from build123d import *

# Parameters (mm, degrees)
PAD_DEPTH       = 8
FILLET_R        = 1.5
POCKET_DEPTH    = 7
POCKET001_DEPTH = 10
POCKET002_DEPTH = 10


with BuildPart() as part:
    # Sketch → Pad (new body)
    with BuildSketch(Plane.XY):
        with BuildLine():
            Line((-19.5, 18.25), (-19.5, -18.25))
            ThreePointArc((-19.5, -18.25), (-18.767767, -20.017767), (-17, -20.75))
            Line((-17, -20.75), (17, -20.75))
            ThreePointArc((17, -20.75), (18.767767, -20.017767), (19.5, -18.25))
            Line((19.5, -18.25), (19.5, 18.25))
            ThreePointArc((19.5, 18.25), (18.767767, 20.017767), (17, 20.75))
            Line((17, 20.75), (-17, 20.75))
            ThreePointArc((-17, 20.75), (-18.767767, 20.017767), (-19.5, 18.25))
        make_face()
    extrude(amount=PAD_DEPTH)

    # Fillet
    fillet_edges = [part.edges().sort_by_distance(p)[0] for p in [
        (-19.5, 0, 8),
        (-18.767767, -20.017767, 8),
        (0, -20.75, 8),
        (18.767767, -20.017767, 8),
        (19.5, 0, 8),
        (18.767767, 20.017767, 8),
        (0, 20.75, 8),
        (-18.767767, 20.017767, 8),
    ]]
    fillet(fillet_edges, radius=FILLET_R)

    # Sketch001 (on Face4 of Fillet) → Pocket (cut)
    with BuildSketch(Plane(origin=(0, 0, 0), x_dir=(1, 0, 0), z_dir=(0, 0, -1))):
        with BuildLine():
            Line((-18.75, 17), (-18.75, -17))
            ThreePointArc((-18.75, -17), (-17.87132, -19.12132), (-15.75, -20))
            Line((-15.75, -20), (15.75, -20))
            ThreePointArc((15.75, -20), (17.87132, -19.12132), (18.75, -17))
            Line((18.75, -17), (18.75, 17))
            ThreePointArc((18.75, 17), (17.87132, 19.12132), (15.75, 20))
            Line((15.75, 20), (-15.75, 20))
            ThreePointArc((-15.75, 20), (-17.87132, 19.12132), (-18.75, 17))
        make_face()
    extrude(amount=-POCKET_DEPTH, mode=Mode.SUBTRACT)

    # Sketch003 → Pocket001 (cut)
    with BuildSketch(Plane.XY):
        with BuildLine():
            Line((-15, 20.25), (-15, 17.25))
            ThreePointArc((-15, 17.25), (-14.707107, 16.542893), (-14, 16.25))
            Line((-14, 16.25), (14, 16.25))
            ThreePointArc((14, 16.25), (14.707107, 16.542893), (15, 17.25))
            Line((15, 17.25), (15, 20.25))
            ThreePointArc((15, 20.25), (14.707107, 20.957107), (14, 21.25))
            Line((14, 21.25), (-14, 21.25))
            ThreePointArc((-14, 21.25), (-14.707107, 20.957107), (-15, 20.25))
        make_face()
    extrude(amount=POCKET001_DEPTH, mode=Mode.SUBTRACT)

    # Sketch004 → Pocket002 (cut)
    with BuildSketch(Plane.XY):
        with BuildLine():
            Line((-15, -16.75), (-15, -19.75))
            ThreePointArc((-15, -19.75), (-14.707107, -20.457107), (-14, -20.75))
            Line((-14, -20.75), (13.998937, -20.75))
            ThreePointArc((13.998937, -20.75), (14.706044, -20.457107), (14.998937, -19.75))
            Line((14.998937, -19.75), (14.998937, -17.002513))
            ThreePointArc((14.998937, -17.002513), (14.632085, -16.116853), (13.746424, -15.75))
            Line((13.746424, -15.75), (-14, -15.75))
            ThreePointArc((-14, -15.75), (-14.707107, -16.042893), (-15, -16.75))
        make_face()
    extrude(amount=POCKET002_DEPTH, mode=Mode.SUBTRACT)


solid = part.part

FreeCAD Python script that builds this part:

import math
import FreeCAD as App
import Part
import Sketcher
from FreeCAD import Vector
Q = App.Units.Quantity


def edges_at(feature, points):
    """Names of the edges that pass closest to the given points."""
    edges = feature.Shape.Edges
    near = lambda p: min(range(len(edges)), key=lambda i: edges[i].distToShape(Part.Vertex(*p))[0])
    return sorted({f"Edge{near(p) + 1}" for p in points})

doc = App.newDocument("Part")
body = doc.addObject("PartDesign::Body", "Body")

# Sketch on XY plane
sketch1 = body.newObject("Sketcher::SketchObject", "Sketch")
sketch1.AttachmentSupport = (doc.getObject("XY_Plane"), [""])
sketch1.MapMode = "FlatFace"
sketch1.addGeometry(Part.LineSegment(Vector(-19.5, 18.2, 0), Vector(-19.5, -18.2, 0)), False)
sketch1.addGeometry(Part.ArcOfCircle(Part.Circle(Vector(-17, -18.3, 0), Vector(0, 0, 1), 2.5), math.radians(180), math.radians(270)), False)
sketch1.addGeometry(Part.LineSegment(Vector(-17, -20.8, 0), Vector(17, -20.8, 0)), False)
sketch1.addGeometry(Part.ArcOfCircle(Part.Circle(Vector(17, -18.3, 0), Vector(0, 0, 1), 2.5), math.radians(-90), math.radians(0)), False)
sketch1.addGeometry(Part.LineSegment(Vector(19.5, -18.2, 0), Vector(19.5, 18.2, 0)), False)
sketch1.addGeometry(Part.ArcOfCircle(Part.Circle(Vector(17, 18.3, 0), Vector(0, 0, 1), 2.5), math.radians(0), math.radians(90)), False)
sketch1.addGeometry(Part.LineSegment(Vector(17, 20.8, 0), Vector(-17, 20.8, 0)), False)
sketch1.addGeometry(Part.ArcOfCircle(Part.Circle(Vector(-17, 18.3, 0), Vector(0, 0, 1), 2.5), math.radians(90), math.radians(180)), False)
sketch1.addConstraint(Sketcher.Constraint("Tangent", 0, 2, 1, 1))
sketch1.addConstraint(Sketcher.Constraint("Tangent", 1, 2, 2, 1))
sketch1.addConstraint(Sketcher.Constraint("Tangent", 2, 2, 3, 1))
sketch1.addConstraint(Sketcher.Constraint("Tangent", 3, 2, 4, 1))
sketch1.addConstraint(Sketcher.Constraint("Tangent", 4, 2, 5, 1))
sketch1.addConstraint(Sketcher.Constraint("Tangent", 5, 2, 6, 1))
sketch1.addConstraint(Sketcher.Constraint("Tangent", 6, 2, 7, 1))
sketch1.addConstraint(Sketcher.Constraint("Tangent", 7, 2, 0, 1))
sketch1.addConstraint(Sketcher.Constraint("Vertical", 0))
sketch1.addConstraint(Sketcher.Constraint("Horizontal", 2))
sketch1.addConstraint(Sketcher.Constraint("Vertical", 4))
sketch1.addConstraint(Sketcher.Constraint("Horizontal", 6))
sketch1.addConstraint(Sketcher.Constraint("Equal", 1, 3))
sketch1.addConstraint(Sketcher.Constraint("Equal", 3, 5))
sketch1.addConstraint(Sketcher.Constraint("Equal", 5, 7))
sketch1.addConstraint(Sketcher.Constraint("Symmetric", 1, 3, 5, 3, -1, 1))
sketch1.addConstraint(Sketcher.Constraint("Radius", 1, Q("2.5 mm")))
sketch1.addConstraint(Sketcher.Constraint("DistanceX", 2, 1, 2, 2, Q("34 mm")))
sketch1.addConstraint(Sketcher.Constraint("DistanceY", 0, 2, 0, 1, Q("36.5 mm")))
pad1 = body.newObject("PartDesign::Pad", "Pad")
pad1.Profile = sketch1
pad1.Length = 8
doc.recompute()

fillet = body.newObject("PartDesign::Fillet", "Fillet")
fillet.Base = (pad1, edges_at(pad1, [
    (-19.5, 0, 8),
    (-18.768, -20.018, 8),
    (0, -20.75, 8),
    (18.768, -20.018, 8),
    (19.5, 0, 8),
    (18.768, 20.018, 8),
    (0, 20.75, 8),
    (-18.768, 20.018, 8),
]))
fillet.Radius = 1.5

# Sketch on XY plane
sketch2 = body.newObject("Sketcher::SketchObject", "Sketch001")
sketch2.AttachmentSupport = (doc.getObject("XY_Plane"), [""])
sketch2.MapMode = "FlatFace"
sketch2.addGeometry(Part.LineSegment(Vector(-18.8, -17, 0), Vector(-18.8, 17, 0)), False)
sketch2.addGeometry(Part.ArcOfCircle(Part.Circle(Vector(-15.7, 17, 0), Vector(0, 0, 1), 3), math.radians(90), math.radians(180)), False)
sketch2.addGeometry(Part.LineSegment(Vector(-15.8, 20, 0), Vector(15.8, 20, 0)), False)
sketch2.addGeometry(Part.ArcOfCircle(Part.Circle(Vector(15.7, 17, 0), Vector(0, 0, 1), 3), math.radians(0), math.radians(90)), False)
sketch2.addGeometry(Part.LineSegment(Vector(18.8, 17, 0), Vector(18.8, -17, 0)), False)
sketch2.addGeometry(Part.ArcOfCircle(Part.Circle(Vector(15.7, -17, 0), Vector(0, 0, 1), 3), math.radians(-90), math.radians(0)), False)
sketch2.addGeometry(Part.LineSegment(Vector(15.8, -20, 0), Vector(-15.8, -20, 0)), False)
sketch2.addGeometry(Part.ArcOfCircle(Part.Circle(Vector(-15.7, -17, 0), Vector(0, 0, 1), 3), math.radians(-180), math.radians(-90)), False)
sketch2.addConstraint(Sketcher.Constraint("Tangent", 0, 2, 1, 2))
sketch2.addConstraint(Sketcher.Constraint("Tangent", 1, 1, 2, 1))
sketch2.addConstraint(Sketcher.Constraint("Tangent", 2, 2, 3, 2))
sketch2.addConstraint(Sketcher.Constraint("Tangent", 3, 1, 4, 1))
sketch2.addConstraint(Sketcher.Constraint("Tangent", 4, 2, 5, 2))
sketch2.addConstraint(Sketcher.Constraint("Tangent", 5, 1, 6, 1))
sketch2.addConstraint(Sketcher.Constraint("Tangent", 6, 2, 7, 2))
sketch2.addConstraint(Sketcher.Constraint("Tangent", 7, 1, 0, 1))
sketch2.addConstraint(Sketcher.Constraint("Vertical", 0))
sketch2.addConstraint(Sketcher.Constraint("Horizontal", 2))
sketch2.addConstraint(Sketcher.Constraint("Vertical", 4))
sketch2.addConstraint(Sketcher.Constraint("Horizontal", 6))
sketch2.addConstraint(Sketcher.Constraint("Equal", 1, 3))
sketch2.addConstraint(Sketcher.Constraint("Equal", 3, 5))
sketch2.addConstraint(Sketcher.Constraint("Equal", 5, 7))
sketch2.addConstraint(Sketcher.Constraint("Symmetric", 1, 3, 5, 3, -1, 1))
sketch2.addConstraint(Sketcher.Constraint("Radius", 1, Q("3.000001 mm")))
sketch2.addConstraint(Sketcher.Constraint("DistanceY", 0, 1, 0, 2, Q("34 mm")))
sketch2.addConstraint(Sketcher.Constraint("DistanceX", 2, 1, 2, 2, Q("31.5 mm")))
pocket1 = body.newObject("PartDesign::Pocket", "Pocket")
pocket1.Profile = sketch2
pocket1.Length = 7
pocket1.Reversed = True

# Sketch on XY plane
sketch3 = body.newObject("Sketcher::SketchObject", "Sketch002")
sketch3.AttachmentSupport = (doc.getObject("XY_Plane"), [""])
sketch3.MapMode = "FlatFace"
sketch3.addGeometry(Part.LineSegment(Vector(-15, 20.2, 0), Vector(-15, 17.2, 0)), False)
sketch3.addGeometry(Part.ArcOfCircle(Part.Circle(Vector(-14, 17.2, 0), Vector(0, 0, 1), 1), math.radians(180), math.radians(270)), False)
sketch3.addGeometry(Part.LineSegment(Vector(-14, 16.2, 0), Vector(14, 16.2, 0)), False)
sketch3.addGeometry(Part.ArcOfCircle(Part.Circle(Vector(14, 17.2, 0), Vector(0, 0, 1), 1), math.radians(-90), math.radians(0)), False)
sketch3.addGeometry(Part.LineSegment(Vector(15, 17.2, 0), Vector(15, 20.2, 0)), False)
sketch3.addGeometry(Part.ArcOfCircle(Part.Circle(Vector(14, 20.3, 0), Vector(0, 0, 1), 1), math.radians(0), math.radians(90)), False)
sketch3.addGeometry(Part.LineSegment(Vector(14, 21.2, 0), Vector(-14, 21.2, 0)), False)
sketch3.addGeometry(Part.ArcOfCircle(Part.Circle(Vector(-14, 20.3, 0), Vector(0, 0, 1), 1), math.radians(90), math.radians(180)), False)
sketch3.addConstraint(Sketcher.Constraint("Tangent", 0, 2, 1, 1))
sketch3.addConstraint(Sketcher.Constraint("Tangent", 1, 2, 2, 1))
sketch3.addConstraint(Sketcher.Constraint("Tangent", 2, 2, 3, 1))
sketch3.addConstraint(Sketcher.Constraint("Tangent", 3, 2, 4, 1))
sketch3.addConstraint(Sketcher.Constraint("Tangent", 4, 2, 5, 1))
sketch3.addConstraint(Sketcher.Constraint("Tangent", 5, 2, 6, 1))
sketch3.addConstraint(Sketcher.Constraint("Tangent", 6, 2, 7, 1))
sketch3.addConstraint(Sketcher.Constraint("Tangent", 7, 2, 0, 1))
sketch3.addConstraint(Sketcher.Constraint("Vertical", 0))
sketch3.addConstraint(Sketcher.Constraint("Horizontal", 2))
sketch3.addConstraint(Sketcher.Constraint("Vertical", 4))
sketch3.addConstraint(Sketcher.Constraint("Horizontal", 6))
sketch3.addConstraint(Sketcher.Constraint("Equal", 1, 3))
sketch3.addConstraint(Sketcher.Constraint("Equal", 3, 5))
sketch3.addConstraint(Sketcher.Constraint("Equal", 5, 7))
sketch3.addConstraint(Sketcher.Constraint("Radius", 1, Q("0.999999 mm")))
sketch3.addConstraint(Sketcher.Constraint("DistanceX", 2, 1, 2, 2, Q("28 mm")))
sketch3.addConstraint(Sketcher.Constraint("DistanceY", 0, 2, 0, 1, Q("3 mm")))
sketch3.addConstraint(Sketcher.Constraint("DistanceX", 1, 3, -1, 1, Q("14.000001 mm")))
sketch3.addConstraint(Sketcher.Constraint("DistanceY", -1, 1, 1, 3, Q("17.249999 mm")))
pocket2 = body.newObject("PartDesign::Pocket", "Pocket001")
pocket2.Profile = sketch3
pocket2.Length = 10
pocket2.Reversed = True

# Sketch on XY plane
sketch4 = body.newObject("Sketcher::SketchObject", "Sketch003")
sketch4.AttachmentSupport = (doc.getObject("XY_Plane"), [""])
sketch4.MapMode = "FlatFace"
sketch4.addGeometry(Part.LineSegment(Vector(-15, -16.8, 0), Vector(-15, -19.8, 0)), False)
sketch4.addGeometry(Part.ArcOfCircle(Part.Circle(Vector(-14, -19.8, 0), Vector(0, 0, 1), 1), math.radians(180), math.radians(270)), False)
sketch4.addGeometry(Part.LineSegment(Vector(-14, -20.8, 0), Vector(14, -20.8, 0)), False)
sketch4.addGeometry(Part.ArcOfCircle(Part.Circle(Vector(14, -19.8, 0), Vector(0, 0, 1), 1), math.radians(-90), math.radians(0)), False)
sketch4.addGeometry(Part.LineSegment(Vector(15, -19.8, 0), Vector(15, -17, 0)), False)
sketch4.addGeometry(Part.ArcOfCircle(Part.Circle(Vector(13.7, -17, 0), Vector(0, 0, 1), 1.3), math.radians(0), math.radians(90)), False)
sketch4.addGeometry(Part.LineSegment(Vector(13.7, -15.8, 0), Vector(-14, -15.8, 0)), False)
sketch4.addGeometry(Part.ArcOfCircle(Part.Circle(Vector(-14, -16.7, 0), Vector(0, 0, 1), 1), math.radians(90), math.radians(180)), False)
sketch4.addConstraint(Sketcher.Constraint("Tangent", 0, 2, 1, 1))
sketch4.addConstraint(Sketcher.Constraint("Tangent", 1, 2, 2, 1))
sketch4.addConstraint(Sketcher.Constraint("Tangent", 2, 2, 3, 1))
sketch4.addConstraint(Sketcher.Constraint("Tangent", 3, 2, 4, 1))
sketch4.addConstraint(Sketcher.Constraint("Tangent", 4, 2, 5, 1))
sketch4.addConstraint(Sketcher.Constraint("Tangent", 5, 2, 6, 1))
sketch4.addConstraint(Sketcher.Constraint("Tangent", 6, 2, 7, 1))
sketch4.addConstraint(Sketcher.Constraint("Tangent", 7, 2, 0, 1))
sketch4.addConstraint(Sketcher.Constraint("Vertical", 0))
sketch4.addConstraint(Sketcher.Constraint("Horizontal", 2))
sketch4.addConstraint(Sketcher.Constraint("Vertical", 4))
sketch4.addConstraint(Sketcher.Constraint("Horizontal", 6))
sketch4.addConstraint(Sketcher.Constraint("Equal", 1, 3))
sketch4.addConstraint(Sketcher.Constraint("Equal", 3, 7))
sketch4.addConstraint(Sketcher.Constraint("Radius", 1, Q("0.999999 mm")))
sketch4.addConstraint(Sketcher.Constraint("DistanceY", 0, 2, 0, 1, Q("3 mm")))
sketch4.addConstraint(Sketcher.Constraint("DistanceX", 1, 3, -1, 1, Q("14.000001 mm")))
sketch4.addConstraint(Sketcher.Constraint("DistanceY", 1, 3, -1, 1, Q("19.750001 mm")))
sketch4.addConstraint(Sketcher.Constraint("Radius", 5, Q("1.252513 mm")))
sketch4.addConstraint(Sketcher.Constraint("DistanceX", 2, 1, 2, 2, Q("27.998937 mm")))
pocket3 = body.newObject("PartDesign::Pocket", "Pocket002")
pocket3.Profile = sketch4
pocket3.Length = 10
pocket3.Reversed = True

doc.recompute()
